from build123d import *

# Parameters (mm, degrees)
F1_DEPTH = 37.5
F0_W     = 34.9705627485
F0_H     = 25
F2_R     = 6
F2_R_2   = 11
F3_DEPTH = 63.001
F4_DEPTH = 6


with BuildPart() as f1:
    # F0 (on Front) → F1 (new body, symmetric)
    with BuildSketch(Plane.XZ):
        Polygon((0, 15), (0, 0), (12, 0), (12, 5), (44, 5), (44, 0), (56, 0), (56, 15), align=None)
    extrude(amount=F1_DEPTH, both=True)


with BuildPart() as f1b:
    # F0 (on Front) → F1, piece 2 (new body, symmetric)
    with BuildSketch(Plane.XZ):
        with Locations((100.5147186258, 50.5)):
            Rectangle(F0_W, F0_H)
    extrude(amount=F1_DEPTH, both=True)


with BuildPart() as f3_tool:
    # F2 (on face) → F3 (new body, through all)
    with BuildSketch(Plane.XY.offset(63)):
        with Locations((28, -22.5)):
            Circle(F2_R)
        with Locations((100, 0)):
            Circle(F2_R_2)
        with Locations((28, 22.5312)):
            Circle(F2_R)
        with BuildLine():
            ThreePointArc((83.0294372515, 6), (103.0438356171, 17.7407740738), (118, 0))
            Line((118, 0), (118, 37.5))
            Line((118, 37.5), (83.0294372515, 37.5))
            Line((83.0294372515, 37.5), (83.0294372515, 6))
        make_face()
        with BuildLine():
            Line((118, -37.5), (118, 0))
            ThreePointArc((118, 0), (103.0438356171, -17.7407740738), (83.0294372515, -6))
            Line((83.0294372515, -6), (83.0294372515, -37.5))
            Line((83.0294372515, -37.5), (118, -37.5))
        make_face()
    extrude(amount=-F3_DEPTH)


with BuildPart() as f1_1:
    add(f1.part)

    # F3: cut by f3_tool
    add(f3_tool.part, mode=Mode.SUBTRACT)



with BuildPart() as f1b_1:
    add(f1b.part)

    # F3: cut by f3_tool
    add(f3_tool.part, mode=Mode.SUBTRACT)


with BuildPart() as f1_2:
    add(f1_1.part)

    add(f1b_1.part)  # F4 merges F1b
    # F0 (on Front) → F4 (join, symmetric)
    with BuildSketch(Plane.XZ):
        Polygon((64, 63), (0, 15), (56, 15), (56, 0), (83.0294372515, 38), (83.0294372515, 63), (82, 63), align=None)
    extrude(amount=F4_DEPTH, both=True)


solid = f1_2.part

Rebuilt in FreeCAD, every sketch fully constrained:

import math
import FreeCAD as App
import Part
import Sketcher
from FreeCAD import Vector

doc = App.newDocument("Part")
body = doc.addObject("PartDesign::Body", "Body")

# Sketch on XZ plane
sketch1 = body.newObject("Sketcher::SketchObject", "Sketch")
sketch1.AttachmentSupport = (doc.getObject("XZ_Plane"), [""])
sketch1.MapMode = "FlatFace"
sketch1.addGeometry(Part.LineSegment(Vector(0, 15, 0), Vector(0, 0, 0)), False)
sketch1.addGeometry(Part.LineSegment(Vector(0, 0, 0), Vector(12, 0, 0)), False)
sketch1.addGeometry(Part.LineSegment(Vector(12, 0, 0), Vector(12, 5, 0)), False)
sketch1.addGeometry(Part.LineSegment(Vector(12, 5, 0), Vector(44, 5, 0)), False)
sketch1.addGeometry(Part.LineSegment(Vector(44, 5, 0), Vector(44, 0, 0)), False)
sketch1.addGeometry(Part.LineSegment(Vector(44, 0, 0), Vector(56, 0, 0)), False)
sketch1.addGeometry(Part.LineSegment(Vector(56, 0, 0), Vector(56, 15, 0)), False)
sketch1.addGeometry(Part.LineSegment(Vector(56, 15, 0), Vector(0, 15, 0)), False)
sketch1.addConstraint(Sketcher.Constraint("Coincident", 0, 2, 1, 1))
sketch1.addConstraint(Sketcher.Constraint("Coincident", 1, 2, 2, 1))
sketch1.addConstraint(Sketcher.Constraint("Coincident", 2, 2, 3, 1))
sketch1.addConstraint(Sketcher.Constraint("Coincident", 3, 2, 4, 1))
sketch1.addConstraint(Sketcher.Constraint("Coincident", 4, 2, 5, 1))
sketch1.addConstraint(Sketcher.Constraint("Coincident", 5, 2, 6, 1))
sketch1.addConstraint(Sketcher.Constraint("Coincident", 6, 2, 7, 1))
sketch1.addConstraint(Sketcher.Constraint("Coincident", 7, 2, 0, 1))
sketch1.addConstraint(Sketcher.Constraint("Vertical", 0))
sketch1.addConstraint(Sketcher.Constraint("Horizontal", 1))
sketch1.addConstraint(Sketcher.Constraint("Vertical", 2))
sketch1.addConstraint(Sketcher.Constraint("Horizontal", 3))
sketch1.addConstraint(Sketcher.Constraint("Vertical", 4))
sketch1.addConstraint(Sketcher.Constraint("Horizontal", 5))
sketch1.addConstraint(Sketcher.Constraint("Vertical", 6))
sketch1.addConstraint(Sketcher.Constraint("Horizontal", 7))
sketch1.addConstraint(Sketcher.Constraint("Coincident", 0, 2, -1, 1))
sketch1.addConstraint(Sketcher.Constraint("PointOnObject", 4, 2, -1))
sketch1.addConstraint(Sketcher.Constraint("Equal", 1, 5))
sketch1.addConstraint(Sketcher.Constraint("DistanceX", 1, 1, 1, 2, 12.0))
sketch1.addConstraint(Sketcher.Constraint("DistanceX", 3, 1, 3, 2, 32.0))
sketch1.addConstraint(Sketcher.Constraint("DistanceY", 0, 2, 0, 1, 15.0))
sketch1.addConstraint(Sketcher.Constraint("DistanceY", 2, 1, 2, 2, 5.0))
pad1 = body.newObject("PartDesign::Pad", "Pad")
pad1.Profile = sketch1
pad1.Length = 75
pad1.Midplane = True
body2 = doc.addObject("PartDesign::Body", "Body001")

# Sketch on XZ plane
sketch2 = body2.newObject("Sketcher::SketchObject", "Sketch001")
sketch2.AttachmentSupport = (doc.getObject("XZ_Plane001"), [""])
sketch2.MapMode = "FlatFace"
sketch2.addGeometry(Part.LineSegment(Vector(83, 63, 0), Vector(83, 38, 0)), False)
sketch2.addGeometry(Part.LineSegment(Vector(83, 38, 0), Vector(118, 38, 0)), False)
sketch2.addGeometry(Part.LineSegment(Vector(118, 38, 0), Vector(118, 63, 0)), False)
sketch2.addGeometry(Part.LineSegment(Vector(118, 63, 0), Vector(83, 63, 0)), False)
sketch2.addConstraint(Sketcher.Constraint("Coincident", 0, 2, 1, 1))
sketch2.addConstraint(Sketcher.Constraint("Coincident", 1, 2, 2, 1))
sketch2.addConstraint(Sketcher.Constraint("Coincident", 2, 2, 3, 1))
sketch2.addConstraint(Sketcher.Constraint("Coincident", 3, 2, 0, 1))
sketch2.addConstraint(Sketcher.Constraint("Vertical", 0))
sketch2.addConstraint(Sketcher.Constraint("Horizontal", 1))
sketch2.addConstraint(Sketcher.Constraint("Vertical", 2))
sketch2.addConstraint(Sketcher.Constraint("Horizontal", 3))
sketch2.addConstraint(Sketcher.Constraint("DistanceY", 0, 2, 0, 1, 25.0))
sketch2.addConstraint(Sketcher.Constraint("DistanceY", -1, 1, 0, 2, 38.0))
sketch2.addConstraint(Sketcher.Constraint("DistanceX", -1, 1, 1, 2, 118.0))
sketch2.addConstraint(Sketcher.Constraint("DistanceX", 1, 1, 1, 2, 34.970563))
pad2 = body2.newObject("PartDesign::Pad", "Pad001")
pad2.Profile = sketch2
pad2.Length = 75
pad2.Midplane = True
body3 = doc.addObject("PartDesign::Body", "Body002")
body3.AllowCompound = True

# Sketch on XY plane
sketch3 = body3.newObject("Sketcher::SketchObject", "Sketch002")
sketch3.AttachmentSupport = (doc.getObject("XY_Plane002"), [""])
sketch3.MapMode = "FlatFace"
sketch3.AttachmentOffset = App.Placement(Vector(0, 0, 63), App.Rotation())
sketch3.addGeometry(Part.Circle(Vector(28, -22, 0), Vector(0, 0, 1), 6), False)
sketch3.addGeometry(Part.Circle(Vector(100, 0, 0), Vector(0, 0, 1), 11), False)
sketch3.addGeometry(Part.Circle(Vector(28, 23, 0), Vector(0, 0, 1), 6), False)
sketch3.addGeometry(Part.ArcOfCircle(Part.Circle(Vector(100, 0, 0), Vector(0, 0, 1), 18), math.radians(0), math.radians(161)), False)
sketch3.addGeometry(Part.LineSegment(Vector(118, 0, 0), Vector(118, 38, 0)), False)
sketch3.addGeometry(Part.LineSegment(Vector(118, 38, 0), Vector(83, 38, 0)), False)
sketch3.addGeometry(Part.LineSegment(Vector(83, 38, 0), Vector(83, 6, 0)), False)
sketch3.addGeometry(Part.LineSegment(Vector(118, -38, 0), Vector(118, 0, 0)), False)
sketch3.addGeometry(Part.ArcOfCircle(Part.Circle(Vector(100, 0, 0), Vector(0, 0, 1), 18), math.radians(-161), math.radians(0)), False)
sketch3.addGeometry(Part.LineSegment(Vector(83, -6, 0), Vector(83, -38, 0)), False)
sketch3.addGeometry(Part.LineSegment(Vector(83, -38, 0), Vector(118, -38, 0)), False)
sketch3.addConstraint(Sketcher.Constraint("Tangent", 3, 1, 4, 1))
sketch3.addConstraint(Sketcher.Constraint("Coincident", 4, 2, 5, 1))
sketch3.addConstraint(Sketcher.Constraint("Coincident", 5, 2, 6, 1))
sketch3.addConstraint(Sketcher.Constraint("Coincident", 6, 2, 3, 2))
sketch3.addConstraint(Sketcher.Constraint("Tangent", 7, 2, 8, 2))
sketch3.addConstraint(Sketcher.Constraint("Coincident", 8, 1, 9, 1))
sketch3.addConstraint(Sketcher.Constraint("Coincident", 9, 2, 10, 1))
sketch3.addConstraint(Sketcher.Constraint("Coincident", 10, 2, 7, 1))
sketch3.addConstraint(Sketcher.Constraint("Vertical", 4))
sketch3.addConstraint(Sketcher.Constraint("Horizontal", 5))
sketch3.addConstraint(Sketcher.Constraint("Vertical", 6))
sketch3.addConstraint(Sketcher.Constraint("Vertical", 7))
sketch3.addConstraint(Sketcher.Constraint("Vertical", 9))
sketch3.addConstraint(Sketcher.Constraint("Horizontal", 10))
sketch3.addConstraint(Sketcher.Constraint("Coincident", 3, 3, 1, 3))
sketch3.addConstraint(Sketcher.Constraint("Coincident", 8, 3, 1, 3))
sketch3.addConstraint(Sketcher.Constraint("Equal", 0, 2))
sketch3.addConstraint(Sketcher.Constraint("Equal", 3, 8))
sketch3.addConstraint(Sketcher.Constraint("Symmetric", 6, 2, 8, 1, -1))
sketch3.addConstraint(Sketcher.Constraint("Vertical", 0, 3, 2, 3))
sketch3.addConstraint(Sketcher.Constraint("Equal", 4, 7))
sketch3.addConstraint(Sketcher.Constraint("Diameter", 0, 12.0))
sketch3.addConstraint(Sketcher.Constraint("Diameter", 1, 22.0))
sketch3.addConstraint(Sketcher.Constraint("Radius", 3, 18.0))
sketch3.addConstraint(Sketcher.Constraint("DistanceY", 4, 1, 4, 2, 37.5))
sketch3.addConstraint(Sketcher.Constraint("DistanceY", 6, 2, 6, 1, 31.5))
sketch3.addConstraint(Sketcher.Constraint("DistanceX", -1, 1, 0, 3, 28.0))
sketch3.addConstraint(Sketcher.Constraint("DistanceX", -1, 1, 1, 3, 100.0))
sketch3.addConstraint(Sketcher.Constraint("DistanceY", 0, 3, -1, 1, 22.5))
sketch3.addConstraint(Sketcher.Constraint("DistanceY", -1, 1, 2, 3, 22.5312))
pad3 = body3.newObject("PartDesign::Pad", "Pad002")
pad3.Profile = sketch3
pad3.Length = 63.001
pad3.Reversed = True
doc.recompute()

body4 = doc.addObject("PartDesign::Body", "Body003")
body4.BaseFeature = body3
boolean = body.newObject("PartDesign::Boolean", "Boolean")
boolean.Type = "Cut"
boolean.addObjects([body4])
doc.recompute()

boolean2 = body2.newObject("PartDesign::Boolean", "Boolean001")
boolean2.Type = "Cut"
boolean2.addObjects([body3])
body.AllowCompound = True
doc.recompute()

boolean3 = body.newObject("PartDesign::Boolean", "Boolean002")
boolean3.Type = "Fuse"
boolean3.addObjects([body2])

# Sketch on XZ plane
sketch4 = body.newObject("Sketcher::SketchObject", "Sketch003")
sketch4.AttachmentSupport = (doc.getObject("XZ_Plane"), [""])
sketch4.MapMode = "FlatFace"
sketch4.addGeometry(Part.LineSegment(Vector(64, 63, 0), Vector(0, 15, 0)), False)
sketch4.addGeometry(Part.LineSegment(Vector(0, 15, 0), Vector(56, 15, 0)), False)
sketch4.addGeometry(Part.LineSegment(Vector(56, 15, 0), Vector(56, 0, 0)), False)
sketch4.addGeometry(Part.LineSegment(Vector(56, 0, 0), Vector(83, 38, 0)), False)
sketch4.addGeometry(Part.LineSegment(Vector(83, 38, 0), Vector(83, 63, 0)), False)
sketch4.addGeometry(Part.LineSegment(Vector(83, 63, 0), Vector(64, 63, 0)), False)
sketch4.addConstraint(Sketcher.Constraint("Coincident", 0, 2, 1, 1))
sketch4.addConstraint(Sketcher.Constraint("Coincident", 1, 2, 2, 1))
sketch4.addConstraint(Sketcher.Constraint("Coincident", 2, 2, 3, 1))
sketch4.addConstraint(Sketcher.Constraint("Coincident", 3, 2, 4, 1))
sketch4.addConstraint(Sketcher.Constraint("Coincident", 4, 2, 5, 1))
sketch4.addConstraint(Sketcher.Constraint("Coincident", 5, 2, 0, 1))
sketch4.addConstraint(Sketcher.Constraint("Horizontal", 1))
sketch4.addConstraint(Sketcher.Constraint("Vertical", 2))
sketch4.addConstraint(Sketcher.Constraint("Vertical", 4))
sketch4.addConstraint(Sketcher.Constraint("Horizontal", 5))
sketch4.addConstraint(Sketcher.Constraint("PointOnObject", 0, 2, -2))
sketch4.addConstraint(Sketcher.Constraint("PointOnObject", 2, 2, -1))
sketch4.addConstraint(Sketcher.Constraint("DistanceX", 1, 1, 1, 2, 56.0))
sketch4.addConstraint(Sketcher.Constraint("DistanceY", 2, 2, 2, 1, 15.0))
sketch4.addConstraint(Sketcher.Constraint("DistanceY", 4, 1, 4, 2, 25.0))
sketch4.addConstraint(Sketcher.Constraint("Distance", 0, 80.0))
sketch4.addConstraint(Sketcher.Constraint("DistanceY", -1, 1, 3, 2, 38.0))
sketch4.addConstraint(Sketcher.Constraint("DistanceX", 5, 2, 5, 1, 19.029437))
pad4 = body.newObject("PartDesign::Pad", "Pad003")
pad4.Profile = sketch4
pad4.Length = 12
pad4.Midplane = True

doc.recompute()
